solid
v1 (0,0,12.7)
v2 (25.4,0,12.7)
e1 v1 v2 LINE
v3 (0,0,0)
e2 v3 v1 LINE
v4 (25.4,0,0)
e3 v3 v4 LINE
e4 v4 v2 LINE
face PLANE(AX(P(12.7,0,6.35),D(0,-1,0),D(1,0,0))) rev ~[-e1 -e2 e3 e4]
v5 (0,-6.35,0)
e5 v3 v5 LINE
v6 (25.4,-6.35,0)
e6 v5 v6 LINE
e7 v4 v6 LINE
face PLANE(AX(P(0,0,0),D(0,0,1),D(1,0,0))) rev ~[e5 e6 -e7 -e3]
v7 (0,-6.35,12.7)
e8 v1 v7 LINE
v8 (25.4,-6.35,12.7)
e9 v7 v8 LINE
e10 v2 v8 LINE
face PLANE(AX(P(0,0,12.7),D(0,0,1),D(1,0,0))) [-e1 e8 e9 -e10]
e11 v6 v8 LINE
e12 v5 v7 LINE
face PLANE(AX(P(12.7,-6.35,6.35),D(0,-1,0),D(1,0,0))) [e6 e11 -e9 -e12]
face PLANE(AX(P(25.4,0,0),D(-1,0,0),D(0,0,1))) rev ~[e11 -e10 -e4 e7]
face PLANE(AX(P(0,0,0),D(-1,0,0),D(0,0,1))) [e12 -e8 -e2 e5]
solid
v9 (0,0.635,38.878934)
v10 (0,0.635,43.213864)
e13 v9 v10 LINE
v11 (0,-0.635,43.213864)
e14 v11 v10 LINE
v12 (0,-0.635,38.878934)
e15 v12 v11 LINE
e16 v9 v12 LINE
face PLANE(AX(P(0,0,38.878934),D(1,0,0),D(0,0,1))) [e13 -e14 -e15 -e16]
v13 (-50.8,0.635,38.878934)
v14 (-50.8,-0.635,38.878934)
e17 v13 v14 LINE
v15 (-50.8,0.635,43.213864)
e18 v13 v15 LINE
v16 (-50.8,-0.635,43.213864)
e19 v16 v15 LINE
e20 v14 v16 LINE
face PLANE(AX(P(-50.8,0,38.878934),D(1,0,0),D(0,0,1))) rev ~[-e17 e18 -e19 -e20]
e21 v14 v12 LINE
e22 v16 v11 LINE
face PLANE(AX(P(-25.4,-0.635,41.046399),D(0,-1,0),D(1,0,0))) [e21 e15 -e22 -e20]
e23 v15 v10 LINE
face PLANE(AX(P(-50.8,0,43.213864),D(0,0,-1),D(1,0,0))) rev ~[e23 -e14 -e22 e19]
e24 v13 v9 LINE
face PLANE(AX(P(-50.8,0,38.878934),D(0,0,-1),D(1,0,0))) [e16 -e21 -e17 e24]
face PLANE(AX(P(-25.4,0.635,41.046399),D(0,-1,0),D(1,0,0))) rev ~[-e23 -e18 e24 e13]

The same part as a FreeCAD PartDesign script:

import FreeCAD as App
import Part
import Sketcher
from FreeCAD import Vector
Q = App.Units.Quantity


def add_polygon(sketch, points):
    """Adds a closed chain of lines whose ends are joined by coincident constraints."""
    first, n = sketch.GeometryCount, len(points)
    for a, b in zip(points, points[1:] + points[:1]):
        sketch.addGeometry(Part.LineSegment(App.Vector(*a, 0), App.Vector(*b, 0)), False)
    for i in range(n):
        sketch.addConstraint(Sketcher.Constraint("Coincident", first + i, 2, first + (i + 1) % n, 1))

doc = App.newDocument("Part")
params = doc.addObject("Spreadsheet::Sheet", "Params")
for row, (alias, value) in enumerate([
    ("sketch1_width", "1 in"),
    ("sketch1_height", "0.5 in"),
    ("pad1_length", "0.25 in"),
    ("sketch2_width", "2 in"),
    ("pad2_length", "0.05 in"),
], start=1):
    params.set(f"A{row}", alias)
    params.set(f"B{row}", "=" + value)
    params.setAlias(f"B{row}", alias)

body = doc.addObject("PartDesign::Body", "Body")

sketch1 = body.newObject("Sketcher::SketchObject", "Sketch")
sketch1.AttachmentSupport = (doc.getObject("XZ_Plane"), [""])
sketch1.MapMode = "FlatFace"
add_polygon(sketch1, [(0, 12.7), (0, 0), (25.4, 0), (25.4, 12.7)])
sketch1.addConstraint([
    Sketcher.Constraint("Vertical", 0),
    Sketcher.Constraint("Horizontal", 1),
    Sketcher.Constraint("Vertical", 2),
    Sketcher.Constraint("Horizontal", 3),
    Sketcher.Constraint("Coincident", 0, 2, -1, 1),
    Sketcher.Constraint("DistanceX", 1, 1, 1, 2, Q("1 in")),
    Sketcher.Constraint("DistanceY", 0, 2, 0, 1, Q("0.5 in")),
])
sketch1.setExpression("Constraints[9]", "Params.sketch1_width")
sketch1.setExpression("Constraints[10]", "Params.sketch1_height")
pad1 = body.newObject("PartDesign::Pad", "Pad")
pad1.Profile = sketch1
pad1.setExpression("Length", "Params.pad1_length")
body2 = doc.addObject("PartDesign::Body", "Body001")

sketch2 = body2.newObject("Sketcher::SketchObject", "Sketch001")
sketch2.AttachmentSupport = (doc.getObject("XZ_Plane001"), [""])
sketch2.MapMode = "FlatFace"
add_polygon(sketch2, [(-50.8, 43.213864), (-50.8, 38.878934), (0, 38.878934), (0, 43.213864)])
sketch2.addConstraint([
    Sketcher.Constraint("Vertical", 0),
    Sketcher.Constraint("Horizontal", 1),
    Sketcher.Constraint("Vertical", 2),
    Sketcher.Constraint("Horizontal", 3),
    Sketcher.Constraint("PointOnObject", 1, 2, -2),
    Sketcher.Constraint("DistanceX", 1, 1, 1, 2, Q("2 in")),
    Sketcher.Constraint("DistanceY", 0, 2, 0, 1, Q("4.334929 mm")),
    Sketcher.Constraint("DistanceY", -1, 1, 0, 2, Q("38.878934 mm")),
])
sketch2.setExpression("Constraints[9]", "Params.sketch2_width")
pad2 = body2.newObject("PartDesign::Pad", "Pad001")
pad2.Profile = sketch2
pad2.setExpression("Length", "Params.pad2_length")
pad2.Midplane = True

doc.recompute()
